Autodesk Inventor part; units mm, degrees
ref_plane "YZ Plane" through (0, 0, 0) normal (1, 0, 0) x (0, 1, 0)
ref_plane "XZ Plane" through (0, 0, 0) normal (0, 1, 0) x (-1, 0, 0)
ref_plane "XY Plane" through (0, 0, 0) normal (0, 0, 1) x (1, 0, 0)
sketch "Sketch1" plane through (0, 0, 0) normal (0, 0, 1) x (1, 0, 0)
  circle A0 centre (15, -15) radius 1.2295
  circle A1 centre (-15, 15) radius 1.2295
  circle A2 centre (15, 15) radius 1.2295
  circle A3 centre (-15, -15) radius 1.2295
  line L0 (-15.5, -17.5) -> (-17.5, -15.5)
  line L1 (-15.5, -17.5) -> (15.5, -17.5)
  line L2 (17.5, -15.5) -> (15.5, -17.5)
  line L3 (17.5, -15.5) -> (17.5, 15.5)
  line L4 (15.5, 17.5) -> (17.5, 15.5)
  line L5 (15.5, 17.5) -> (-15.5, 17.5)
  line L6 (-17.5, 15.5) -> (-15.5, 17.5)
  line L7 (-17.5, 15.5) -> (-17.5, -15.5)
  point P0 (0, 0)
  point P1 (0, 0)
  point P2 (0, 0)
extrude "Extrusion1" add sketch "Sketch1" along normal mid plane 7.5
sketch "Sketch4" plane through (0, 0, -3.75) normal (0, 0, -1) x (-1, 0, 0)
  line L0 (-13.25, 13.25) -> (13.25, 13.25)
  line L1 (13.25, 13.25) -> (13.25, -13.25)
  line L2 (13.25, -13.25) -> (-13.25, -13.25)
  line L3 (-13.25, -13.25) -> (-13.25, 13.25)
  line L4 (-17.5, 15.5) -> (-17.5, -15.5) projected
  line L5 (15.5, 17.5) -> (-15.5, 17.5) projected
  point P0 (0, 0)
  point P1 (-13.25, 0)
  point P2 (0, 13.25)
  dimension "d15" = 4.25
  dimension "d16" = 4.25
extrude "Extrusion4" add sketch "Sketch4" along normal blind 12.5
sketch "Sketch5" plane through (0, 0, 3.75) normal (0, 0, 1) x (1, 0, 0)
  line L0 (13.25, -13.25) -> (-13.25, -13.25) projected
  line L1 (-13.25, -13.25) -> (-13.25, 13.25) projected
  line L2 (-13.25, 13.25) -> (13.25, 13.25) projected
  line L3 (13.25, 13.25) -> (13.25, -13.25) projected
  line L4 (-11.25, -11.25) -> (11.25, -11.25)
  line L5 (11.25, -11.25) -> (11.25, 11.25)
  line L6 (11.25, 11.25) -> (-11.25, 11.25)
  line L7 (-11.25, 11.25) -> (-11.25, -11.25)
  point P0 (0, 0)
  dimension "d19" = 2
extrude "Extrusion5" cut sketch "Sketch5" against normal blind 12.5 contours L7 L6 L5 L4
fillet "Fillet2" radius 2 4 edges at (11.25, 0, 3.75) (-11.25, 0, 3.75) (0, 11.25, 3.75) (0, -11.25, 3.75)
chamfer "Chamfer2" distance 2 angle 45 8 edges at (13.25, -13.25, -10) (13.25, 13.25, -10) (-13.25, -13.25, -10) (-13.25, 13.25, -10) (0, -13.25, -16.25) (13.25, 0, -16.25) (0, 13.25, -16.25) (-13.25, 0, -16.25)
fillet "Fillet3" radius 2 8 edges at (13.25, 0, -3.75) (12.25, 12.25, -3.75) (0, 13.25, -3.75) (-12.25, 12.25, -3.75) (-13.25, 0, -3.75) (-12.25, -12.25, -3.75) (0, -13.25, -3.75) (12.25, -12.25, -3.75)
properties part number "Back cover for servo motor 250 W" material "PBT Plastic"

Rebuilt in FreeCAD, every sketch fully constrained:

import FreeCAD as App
import Part
import Sketcher
Q = App.Units.Quantity


def edges_at(feature, points):
    """Names of the edges that pass closest to the given points."""
    edges = feature.Shape.Edges
    near = lambda p: min(range(len(edges)), key=lambda i: edges[i].distToShape(Part.Vertex(*p))[0])
    return sorted({f"Edge{near(p) + 1}" for p in points})

doc = App.newDocument("Part")
body = doc.addObject("PartDesign::Body", "Body")

# Sketch on XY plane
sketch1 = body.newObject("Sketcher::SketchObject", "Sketch")
sketch1.AttachmentSupport = (doc.getObject("XY_Plane"), [""])
sketch1.MapMode = "FlatFace"
sketch1.addGeometry(Part.LineSegment(App.Vector(-17.5, -15.5, 0), App.Vector(-15.5, -17.5, 0)), False)
sketch1.addGeometry(Part.LineSegment(App.Vector(-15.5, -17.5, 0), App.Vector(15.5, -17.5, 0)), False)
sketch1.addGeometry(Part.LineSegment(App.Vector(15.5, -17.5, 0), App.Vector(17.5, -15.5, 0)), False)
sketch1.addGeometry(Part.LineSegment(App.Vector(17.5, -15.5, 0), App.Vector(17.5, 15.5, 0)), False)
sketch1.addGeometry(Part.LineSegment(App.Vector(17.5, 15.5, 0), App.Vector(15.5, 17.5, 0)), False)
sketch1.addGeometry(Part.LineSegment(App.Vector(15.5, 17.5, 0), App.Vector(-15.5, 17.5, 0)), False)
sketch1.addGeometry(Part.LineSegment(App.Vector(-15.5, 17.5, 0), App.Vector(-17.5, 15.5, 0)), False)
sketch1.addGeometry(Part.LineSegment(App.Vector(-17.5, 15.5, 0), App.Vector(-17.5, -15.5, 0)), False)
sketch1.addGeometry(Part.Circle(App.Vector(-15, -15, 0), App.Vector(0, 0, 1), 1.2), False)
sketch1.addGeometry(Part.Circle(App.Vector(15, -15, 0), App.Vector(0, 0, 1), 1.2), False)
sketch1.addGeometry(Part.Circle(App.Vector(-15, 15, 0), App.Vector(0, 0, 1), 1.2), False)
sketch1.addGeometry(Part.Circle(App.Vector(15, 15, 0), App.Vector(0, 0, 1), 1.2), False)
sketch1.addConstraint(Sketcher.Constraint("Coincident", 0, 2, 1, 1))
sketch1.addConstraint(Sketcher.Constraint("Coincident", 1, 2, 2, 1))
sketch1.addConstraint(Sketcher.Constraint("Coincident", 2, 2, 3, 1))
sketch1.addConstraint(Sketcher.Constraint("Coincident", 3, 2, 4, 1))
sketch1.addConstraint(Sketcher.Constraint("Coincident", 4, 2, 5, 1))
sketch1.addConstraint(Sketcher.Constraint("Coincident", 5, 2, 6, 1))
sketch1.addConstraint(Sketcher.Constraint("Coincident", 6, 2, 7, 1))
sketch1.addConstraint(Sketcher.Constraint("Coincident", 7, 2, 0, 1))
sketch1.addConstraint(Sketcher.Constraint("Horizontal", 1))
sketch1.addConstraint(Sketcher.Constraint("Vertical", 3))
sketch1.addConstraint(Sketcher.Constraint("Horizontal", 5))
sketch1.addConstraint(Sketcher.Constraint("Vertical", 7))
sketch1.addConstraint(Sketcher.Constraint("Equal", 8, 9))
sketch1.addConstraint(Sketcher.Constraint("Equal", 9, 10))
sketch1.addConstraint(Sketcher.Constraint("Equal", 10, 11))
sketch1.addConstraint(Sketcher.Constraint("Symmetric", 9, 3, 10, 3, -1, 1))
sketch1.addConstraint(Sketcher.Constraint("Symmetric", 8, 3, 11, 3, -1, 1))
sketch1.addConstraint(Sketcher.Constraint("Symmetric", 0, 2, 4, 2, -1, 1))
sketch1.addConstraint(Sketcher.Constraint("Symmetric", 2, 2, 6, 2, -1, 1))
sketch1.addConstraint(Sketcher.Constraint("Symmetric", 8, 3, 9, 3, -2))
sketch1.addConstraint(Sketcher.Constraint("Perpendicular", 0, 2))
sketch1.addConstraint(Sketcher.Constraint("Perpendicular", 2, 4))
sketch1.addConstraint(Sketcher.Constraint("Perpendicular", 4, 6))
sketch1.addConstraint(Sketcher.Constraint("Horizontal", 3, 2, 6, 2))
sketch1.addConstraint(Sketcher.Constraint("Vertical", 1, 2, 4, 2))
sketch1.addConstraint(Sketcher.Constraint("Equal", 5, 3))
sketch1.addConstraint(Sketcher.Constraint("DistanceX", 1, 1, 1, 2, Q("31 mm")))
sketch1.addConstraint(Sketcher.Constraint("Diameter", 8, Q("2.459 mm")))
sketch1.addConstraint(Sketcher.Constraint("DistanceX", 8, 3, -1, 1, Q("15 mm")))
sketch1.addConstraint(Sketcher.Constraint("DistanceY", 8, 3, -1, 1, Q("15 mm")))
sketch1.addConstraint(Sketcher.Constraint("DistanceX", 1, 2, 2, 2, Q("2 mm")))
pad1 = body.newObject("PartDesign::Pad", "Pad")
pad1.Profile = sketch1
pad1.Length = 7.5
pad1.Midplane = True

# Sketch on XY plane
sketch2 = body.newObject("Sketcher::SketchObject", "Sketch001")
sketch2.AttachmentSupport = (doc.getObject("XY_Plane"), [""])
sketch2.MapMode = "FlatFace"
sketch2.AttachmentOffset = App.Placement(App.Vector(0, 0, -3.75), App.Rotation())
sketch2.addGeometry(Part.LineSegment(App.Vector(-13, 13, 0), App.Vector(13, 13, 0)), False)
sketch2.addGeometry(Part.LineSegment(App.Vector(13, 13, 0), App.Vector(13, -13, 0)), False)
sketch2.addGeometry(Part.LineSegment(App.Vector(13, -13, 0), App.Vector(-13, -13, 0)), False)
sketch2.addGeometry(Part.LineSegment(App.Vector(-13, -13, 0), App.Vector(-13, 13, 0)), False)
sketch2.addConstraint(Sketcher.Constraint("Coincident", 0, 2, 1, 1))
sketch2.addConstraint(Sketcher.Constraint("Coincident", 1, 2, 2, 1))
sketch2.addConstraint(Sketcher.Constraint("Coincident", 2, 2, 3, 1))
sketch2.addConstraint(Sketcher.Constraint("Coincident", 3, 2, 0, 1))
sketch2.addConstraint(Sketcher.Constraint("Horizontal", 0))
sketch2.addConstraint(Sketcher.Constraint("Vertical", 1))
sketch2.addConstraint(Sketcher.Constraint("Horizontal", 2))
sketch2.addConstraint(Sketcher.Constraint("Vertical", 3))
sketch2.addConstraint(Sketcher.Constraint("Symmetric", 0, 2, 2, 2, -1, 1))
sketch2.addConstraint(Sketcher.Constraint("Equal", 2, 1))
sketch2.addConstraint(Sketcher.Constraint("DistanceX", 0, 1, 0, 2, Q("26.5 mm")))
pad2 = body.newObject("PartDesign::Pad", "Pad001")
pad2.Profile = sketch2
pad2.Length = 12.5
pad2.Reversed = True

# Sketch on XY plane
sketch3 = body.newObject("Sketcher::SketchObject", "Sketch002")
sketch3.AttachmentSupport = (doc.getObject("XY_Plane"), [""])
sketch3.MapMode = "FlatFace"
sketch3.AttachmentOffset = App.Placement(App.Vector(0, 0, 3.75), App.Rotation())
sketch3.addGeometry(Part.LineSegment(App.Vector(-11, 11, 0), App.Vector(-11, -11, 0)), False)
sketch3.addGeometry(Part.LineSegment(App.Vector(-11, -11, 0), App.Vector(11, -11, 0)), False)
sketch3.addGeometry(Part.LineSegment(App.Vector(11, -11, 0), App.Vector(11, 11, 0)), False)
sketch3.addGeometry(Part.LineSegment(App.Vector(11, 11, 0), App.Vector(-11, 11, 0)), False)
sketch3.addConstraint(Sketcher.Constraint("Coincident", 0, 2, 1, 1))
sketch3.addConstraint(Sketcher.Constraint("Coincident", 1, 2, 2, 1))
sketch3.addConstraint(Sketcher.Constraint("Coincident", 2, 2, 3, 1))
sketch3.addConstraint(Sketcher.Constraint("Coincident", 3, 2, 0, 1))
sketch3.addConstraint(Sketcher.Constraint("Vertical", 0))
sketch3.addConstraint(Sketcher.Constraint("Horizontal", 1))
sketch3.addConstraint(Sketcher.Constraint("Vertical", 2))
sketch3.addConstraint(Sketcher.Constraint("Horizontal", 3))
sketch3.addConstraint(Sketcher.Constraint("Symmetric", 0, 2, 2, 2, -1, 1))
sketch3.addConstraint(Sketcher.Constraint("Equal", 3, 0))
sketch3.addConstraint(Sketcher.Constraint("DistanceX", 1, 1, 1, 2, Q("22.5 mm")))
pocket1 = body.newObject("PartDesign::Pocket", "Pocket")
pocket1.Profile = sketch3
pocket1.Length = 12.5
doc.recompute()

fillet = body.newObject("PartDesign::Fillet", "Fillet")
fillet.Base = (pocket1, edges_at(pocket1, [
    (11.25, 0, 3.75),
    (-11.25, 0, 3.75),
    (0, 11.25, 3.75),
    (0, -11.25, 3.75),
]))
fillet.Radius = 2
doc.recompute()

chamfer = body.newObject("PartDesign::Chamfer", "Chamfer")
chamfer.Base = (fillet, edges_at(fillet, [
    (13.25, -13.25, -10),
    (13.25, 13.25, -10),
    (-13.25, -13.25, -10),
    (-13.25, 13.25, -10),
    (0, -13.25, -16.25),
    (13.25, 0, -16.25),
    (0, 13.25, -16.25),
    (-13.25, 0, -16.25),
]))
chamfer.Size = 2
doc.recompute()

fillet2 = body.newObject("PartDesign::Fillet", "Fillet001")
fillet2.Base = (chamfer, edges_at(chamfer, [
    (13.25, 0, -3.75),
    (12.25, 12.25, -3.75),
    (0, 13.25, -3.75),
    (-12.25, 12.25, -3.75),
    (-13.25, 0, -3.75),
    (-12.25, -12.25, -3.75),
    (0, -13.25, -3.75),
    (12.25, -12.25, -3.75),
]))
fillet2.Radius = 2

doc.recompute()
